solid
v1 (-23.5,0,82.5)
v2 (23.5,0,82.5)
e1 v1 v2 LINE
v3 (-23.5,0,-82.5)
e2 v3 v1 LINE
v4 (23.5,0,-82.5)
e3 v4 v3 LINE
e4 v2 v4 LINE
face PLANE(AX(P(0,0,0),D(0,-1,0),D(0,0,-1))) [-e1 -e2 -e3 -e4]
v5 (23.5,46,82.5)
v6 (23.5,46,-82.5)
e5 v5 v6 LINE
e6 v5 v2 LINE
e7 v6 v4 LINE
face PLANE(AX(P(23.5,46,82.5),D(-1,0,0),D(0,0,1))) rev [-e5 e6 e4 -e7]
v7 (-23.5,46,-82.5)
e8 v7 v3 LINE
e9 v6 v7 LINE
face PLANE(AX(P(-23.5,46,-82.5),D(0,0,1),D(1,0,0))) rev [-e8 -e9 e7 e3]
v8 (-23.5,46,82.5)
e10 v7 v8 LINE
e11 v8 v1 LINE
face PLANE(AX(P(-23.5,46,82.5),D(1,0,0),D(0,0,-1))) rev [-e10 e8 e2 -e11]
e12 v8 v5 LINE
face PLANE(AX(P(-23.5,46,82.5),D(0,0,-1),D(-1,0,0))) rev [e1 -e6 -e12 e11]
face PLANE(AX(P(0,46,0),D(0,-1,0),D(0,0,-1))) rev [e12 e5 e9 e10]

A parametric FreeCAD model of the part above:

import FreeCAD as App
import Part
import Sketcher
from FreeCAD import Vector

doc = App.newDocument("Part")
body = doc.addObject("PartDesign::Body", "Body")

# Sketch on XZ plane
sketch1 = doc.addObject("Sketcher::SketchObject", "Sketch")
body.addObject(sketch1)
sketch1.AttachmentSupport = (doc.XZ_Plane, [""])
sketch1.MapMode = "FlatFace"
sketch1.addGeometry([
    Part.LineSegment(Vector(-24, -82, 0), Vector(-24, 82, 0)),
    Part.LineSegment(Vector(-24, 82, 0), Vector(24, 82, 0)),
    Part.LineSegment(Vector(24, 82, 0), Vector(24, -82, 0)),
    Part.LineSegment(Vector(24, -82, 0), Vector(-24, -82, 0)),
], False)
sketch1.addConstraint([
    Sketcher.Constraint("Coincident", 0, 2, 1, 1),
    Sketcher.Constraint("Coincident", 1, 2, 2, 1),
    Sketcher.Constraint("Coincident", 2, 2, 3, 1),
    Sketcher.Constraint("Coincident", 3, 2, 0, 1),
    Sketcher.Constraint("Vertical", 0),
    Sketcher.Constraint("Horizontal", 1),
    Sketcher.Constraint("Vertical", 2),
    Sketcher.Constraint("Horizontal", 3),
    Sketcher.Constraint("Symmetric", 0, 2, 2, 2, -1, 1),
    Sketcher.Constraint("DistanceX", 1, 1, 1, 2, 47.0),
    Sketcher.Constraint("DistanceY", 0, 1, 0, 2, 165.0),
])
pad1 = doc.addObject("PartDesign::Pad", "Pad")
body.addObject(pad1)
pad1.Profile = sketch1
pad1.Length = 46
pad1.Reversed = True

doc.recompute()
